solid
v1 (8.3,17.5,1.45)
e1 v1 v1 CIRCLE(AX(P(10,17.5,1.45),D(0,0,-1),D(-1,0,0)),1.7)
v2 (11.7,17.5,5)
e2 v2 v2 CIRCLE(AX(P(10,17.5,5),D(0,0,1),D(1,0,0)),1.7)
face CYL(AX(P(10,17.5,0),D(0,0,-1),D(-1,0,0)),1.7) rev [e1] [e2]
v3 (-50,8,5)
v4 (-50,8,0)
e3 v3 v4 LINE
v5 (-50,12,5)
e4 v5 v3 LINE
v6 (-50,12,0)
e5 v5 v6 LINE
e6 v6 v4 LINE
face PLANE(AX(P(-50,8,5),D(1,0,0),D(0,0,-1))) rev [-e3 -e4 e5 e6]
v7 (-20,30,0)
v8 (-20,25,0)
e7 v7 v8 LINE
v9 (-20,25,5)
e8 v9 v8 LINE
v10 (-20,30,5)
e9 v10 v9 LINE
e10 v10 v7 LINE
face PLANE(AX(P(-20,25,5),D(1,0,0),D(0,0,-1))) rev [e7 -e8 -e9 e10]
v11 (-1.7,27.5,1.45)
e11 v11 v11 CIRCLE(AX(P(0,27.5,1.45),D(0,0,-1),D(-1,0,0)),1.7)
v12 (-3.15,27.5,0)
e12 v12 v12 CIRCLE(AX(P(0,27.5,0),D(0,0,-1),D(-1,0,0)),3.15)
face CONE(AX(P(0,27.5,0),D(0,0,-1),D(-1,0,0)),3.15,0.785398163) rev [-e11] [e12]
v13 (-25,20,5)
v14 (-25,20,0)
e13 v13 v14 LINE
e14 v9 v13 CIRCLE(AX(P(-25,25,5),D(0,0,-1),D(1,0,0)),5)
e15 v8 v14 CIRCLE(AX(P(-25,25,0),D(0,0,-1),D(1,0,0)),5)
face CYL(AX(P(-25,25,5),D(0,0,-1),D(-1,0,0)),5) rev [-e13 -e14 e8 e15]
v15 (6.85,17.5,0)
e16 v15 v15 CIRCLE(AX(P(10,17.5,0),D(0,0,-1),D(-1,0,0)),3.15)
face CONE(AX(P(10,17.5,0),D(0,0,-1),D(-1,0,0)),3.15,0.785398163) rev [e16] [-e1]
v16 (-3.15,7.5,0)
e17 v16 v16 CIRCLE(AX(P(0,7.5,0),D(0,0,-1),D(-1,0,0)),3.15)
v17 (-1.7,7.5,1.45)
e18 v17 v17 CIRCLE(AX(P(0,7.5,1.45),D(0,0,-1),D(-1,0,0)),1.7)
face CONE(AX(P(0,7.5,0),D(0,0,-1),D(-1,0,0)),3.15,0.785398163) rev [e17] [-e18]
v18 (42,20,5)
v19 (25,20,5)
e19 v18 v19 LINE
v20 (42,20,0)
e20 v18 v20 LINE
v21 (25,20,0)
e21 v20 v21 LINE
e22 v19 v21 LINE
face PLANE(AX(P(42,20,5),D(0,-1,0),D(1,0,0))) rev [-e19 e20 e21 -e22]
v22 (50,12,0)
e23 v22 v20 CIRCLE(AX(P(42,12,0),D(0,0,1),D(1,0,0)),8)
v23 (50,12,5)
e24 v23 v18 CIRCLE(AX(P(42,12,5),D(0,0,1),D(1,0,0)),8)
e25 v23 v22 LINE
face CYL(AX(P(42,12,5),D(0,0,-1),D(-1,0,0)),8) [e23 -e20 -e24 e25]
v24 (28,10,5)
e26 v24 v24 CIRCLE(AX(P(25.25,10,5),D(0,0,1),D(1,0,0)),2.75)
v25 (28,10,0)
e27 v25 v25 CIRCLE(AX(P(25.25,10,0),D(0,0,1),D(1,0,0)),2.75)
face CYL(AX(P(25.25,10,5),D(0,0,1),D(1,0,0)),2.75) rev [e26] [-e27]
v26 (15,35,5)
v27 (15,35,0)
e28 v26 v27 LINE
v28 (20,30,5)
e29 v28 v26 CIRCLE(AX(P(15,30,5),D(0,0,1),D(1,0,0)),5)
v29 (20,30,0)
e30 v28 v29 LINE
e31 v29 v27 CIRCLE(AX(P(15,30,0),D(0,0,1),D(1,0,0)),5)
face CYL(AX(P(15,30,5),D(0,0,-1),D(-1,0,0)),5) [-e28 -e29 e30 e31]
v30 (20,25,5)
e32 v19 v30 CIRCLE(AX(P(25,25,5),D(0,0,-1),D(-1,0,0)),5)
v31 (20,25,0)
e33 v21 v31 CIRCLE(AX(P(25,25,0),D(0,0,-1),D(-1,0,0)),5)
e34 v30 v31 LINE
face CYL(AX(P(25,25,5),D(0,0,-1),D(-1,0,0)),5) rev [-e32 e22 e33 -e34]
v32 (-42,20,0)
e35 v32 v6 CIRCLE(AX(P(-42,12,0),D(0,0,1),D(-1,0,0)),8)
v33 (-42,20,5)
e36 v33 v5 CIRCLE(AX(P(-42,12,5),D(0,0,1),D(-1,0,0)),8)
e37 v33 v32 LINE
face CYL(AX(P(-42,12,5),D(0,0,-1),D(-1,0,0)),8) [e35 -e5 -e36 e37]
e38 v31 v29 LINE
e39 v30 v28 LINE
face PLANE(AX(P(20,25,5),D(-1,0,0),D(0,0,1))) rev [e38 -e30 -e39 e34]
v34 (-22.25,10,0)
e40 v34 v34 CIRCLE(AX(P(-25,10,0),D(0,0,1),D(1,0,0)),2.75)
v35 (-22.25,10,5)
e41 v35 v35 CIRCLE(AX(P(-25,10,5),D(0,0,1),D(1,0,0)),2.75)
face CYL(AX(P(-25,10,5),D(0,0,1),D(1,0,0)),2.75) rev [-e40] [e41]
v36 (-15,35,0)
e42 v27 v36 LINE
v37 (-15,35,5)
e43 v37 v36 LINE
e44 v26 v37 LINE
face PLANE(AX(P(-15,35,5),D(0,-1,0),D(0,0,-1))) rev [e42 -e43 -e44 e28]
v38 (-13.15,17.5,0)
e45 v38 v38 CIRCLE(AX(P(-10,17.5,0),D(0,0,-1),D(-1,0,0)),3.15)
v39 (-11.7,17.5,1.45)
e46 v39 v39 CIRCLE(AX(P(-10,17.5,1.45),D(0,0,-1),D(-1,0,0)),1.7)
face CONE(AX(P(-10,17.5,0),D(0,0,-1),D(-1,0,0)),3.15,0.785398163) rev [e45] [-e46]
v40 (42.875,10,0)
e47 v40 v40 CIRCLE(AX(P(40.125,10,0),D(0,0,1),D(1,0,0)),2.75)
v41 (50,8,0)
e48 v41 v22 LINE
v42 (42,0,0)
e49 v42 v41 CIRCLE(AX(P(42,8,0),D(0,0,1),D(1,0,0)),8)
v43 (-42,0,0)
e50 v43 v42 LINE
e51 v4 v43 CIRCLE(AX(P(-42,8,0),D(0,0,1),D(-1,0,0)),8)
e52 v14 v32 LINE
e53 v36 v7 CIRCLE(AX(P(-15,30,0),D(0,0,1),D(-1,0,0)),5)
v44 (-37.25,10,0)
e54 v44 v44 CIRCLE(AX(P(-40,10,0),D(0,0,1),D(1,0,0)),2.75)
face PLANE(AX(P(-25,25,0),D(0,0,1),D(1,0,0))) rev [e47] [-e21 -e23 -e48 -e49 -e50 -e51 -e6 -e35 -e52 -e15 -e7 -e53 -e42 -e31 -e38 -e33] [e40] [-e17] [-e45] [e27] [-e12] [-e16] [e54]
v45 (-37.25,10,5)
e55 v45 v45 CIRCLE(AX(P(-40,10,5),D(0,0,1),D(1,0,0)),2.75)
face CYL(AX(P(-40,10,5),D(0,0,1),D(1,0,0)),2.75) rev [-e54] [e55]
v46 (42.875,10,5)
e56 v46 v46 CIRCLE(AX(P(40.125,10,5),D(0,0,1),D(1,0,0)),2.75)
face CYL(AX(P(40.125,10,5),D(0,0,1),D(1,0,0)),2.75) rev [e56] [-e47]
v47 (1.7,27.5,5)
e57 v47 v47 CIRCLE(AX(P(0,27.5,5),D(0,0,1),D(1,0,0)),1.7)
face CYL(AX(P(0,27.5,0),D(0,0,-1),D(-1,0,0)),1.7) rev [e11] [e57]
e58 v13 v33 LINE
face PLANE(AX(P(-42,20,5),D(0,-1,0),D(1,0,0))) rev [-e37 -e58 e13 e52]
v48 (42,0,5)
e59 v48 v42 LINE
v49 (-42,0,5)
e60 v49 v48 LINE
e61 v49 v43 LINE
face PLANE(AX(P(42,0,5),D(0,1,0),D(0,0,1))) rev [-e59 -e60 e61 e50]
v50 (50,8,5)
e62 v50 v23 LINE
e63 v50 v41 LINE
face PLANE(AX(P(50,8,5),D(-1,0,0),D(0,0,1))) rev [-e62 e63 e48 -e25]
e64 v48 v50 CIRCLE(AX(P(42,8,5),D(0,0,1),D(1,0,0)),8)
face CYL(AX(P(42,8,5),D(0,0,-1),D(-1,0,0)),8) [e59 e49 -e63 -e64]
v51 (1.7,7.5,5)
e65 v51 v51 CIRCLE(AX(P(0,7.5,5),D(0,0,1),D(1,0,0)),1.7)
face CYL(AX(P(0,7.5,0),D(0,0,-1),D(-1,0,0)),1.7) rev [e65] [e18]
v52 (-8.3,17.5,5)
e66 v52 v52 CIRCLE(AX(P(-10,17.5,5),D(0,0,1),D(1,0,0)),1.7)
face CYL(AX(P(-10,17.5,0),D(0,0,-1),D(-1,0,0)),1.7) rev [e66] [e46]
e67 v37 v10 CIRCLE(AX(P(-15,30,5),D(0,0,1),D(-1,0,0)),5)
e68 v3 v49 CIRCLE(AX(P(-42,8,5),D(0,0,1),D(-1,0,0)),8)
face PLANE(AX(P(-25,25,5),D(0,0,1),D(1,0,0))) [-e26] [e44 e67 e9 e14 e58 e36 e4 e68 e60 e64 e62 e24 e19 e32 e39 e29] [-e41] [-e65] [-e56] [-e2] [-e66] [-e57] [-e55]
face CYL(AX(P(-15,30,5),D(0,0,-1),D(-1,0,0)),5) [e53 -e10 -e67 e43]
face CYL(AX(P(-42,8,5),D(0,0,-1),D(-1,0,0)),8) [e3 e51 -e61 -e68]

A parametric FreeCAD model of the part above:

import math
import FreeCAD as App
import Part
import Sketcher
Q = App.Units.Quantity

doc = App.newDocument("Part")
body = doc.addObject("PartDesign::Body", "Body")

# Sketch on XY plane
sketch1 = body.newObject("Sketcher::SketchObject", "Sketch")
sketch1.AttachmentSupport = (doc.getObject("XY_Plane"), [""])
sketch1.MapMode = "FlatFace"
sketch1.addGeometry(Part.LineSegment(App.Vector(-42, 0, 0), App.Vector(42, 0, 0)), False)
sketch1.addGeometry(Part.ArcOfCircle(Part.Circle(App.Vector(42, 8, 0), App.Vector(0, 0, 1), 8), math.radians(-90), math.radians(0)), False)
sketch1.addGeometry(Part.LineSegment(App.Vector(50, 8, 0), App.Vector(50, 12, 0)), False)
sketch1.addGeometry(Part.ArcOfCircle(Part.Circle(App.Vector(42, 12, 0), App.Vector(0, 0, 1), 8), math.radians(0), math.radians(90)), False)
sketch1.addGeometry(Part.LineSegment(App.Vector(42, 20, 0), App.Vector(25, 20, 0)), False)
sketch1.addGeometry(Part.ArcOfCircle(Part.Circle(App.Vector(25, 25, 0), App.Vector(0, 0, 1), 5), math.radians(180), math.radians(270)), False)
sketch1.addGeometry(Part.LineSegment(App.Vector(20, 25, 0), App.Vector(20, 30, 0)), False)
sketch1.addGeometry(Part.ArcOfCircle(Part.Circle(App.Vector(15, 30, 0), App.Vector(0, 0, 1), 5), math.radians(0), math.radians(90)), False)
sketch1.addGeometry(Part.LineSegment(App.Vector(15, 35, 0), App.Vector(-15, 35, 0)), False)
sketch1.addGeometry(Part.ArcOfCircle(Part.Circle(App.Vector(-15, 30, 0), App.Vector(0, 0, 1), 5), math.radians(90), math.radians(180)), False)
sketch1.addGeometry(Part.LineSegment(App.Vector(-20, 30, 0), App.Vector(-20, 25, 0)), False)
sketch1.addGeometry(Part.ArcOfCircle(Part.Circle(App.Vector(-25, 25, 0), App.Vector(0, 0, 1), 5), math.radians(-90), math.radians(0)), False)
sketch1.addGeometry(Part.LineSegment(App.Vector(-25, 20, 0), App.Vector(-42, 20, 0)), False)
sketch1.addGeometry(Part.ArcOfCircle(Part.Circle(App.Vector(-42, 12, 0), App.Vector(0, 0, 1), 8), math.radians(90), math.radians(180)), False)
sketch1.addGeometry(Part.LineSegment(App.Vector(-50, 12, 0), App.Vector(-50, 8, 0)), False)
sketch1.addGeometry(Part.ArcOfCircle(Part.Circle(App.Vector(-42, 8, 0), App.Vector(0, 0, 1), 8), math.radians(-180), math.radians(-90)), False)
sketch1.addConstraint(Sketcher.Constraint("Tangent", 0, 2, 1, 1))
sketch1.addConstraint(Sketcher.Constraint("Tangent", 1, 2, 2, 1))
sketch1.addConstraint(Sketcher.Constraint("Tangent", 2, 2, 3, 1))
sketch1.addConstraint(Sketcher.Constraint("Tangent", 3, 2, 4, 1))
sketch1.addConstraint(Sketcher.Constraint("Tangent", 4, 2, 5, 2))
sketch1.addConstraint(Sketcher.Constraint("Tangent", 5, 1, 6, 1))
sketch1.addConstraint(Sketcher.Constraint("Tangent", 6, 2, 7, 1))
sketch1.addConstraint(Sketcher.Constraint("Tangent", 7, 2, 8, 1))
sketch1.addConstraint(Sketcher.Constraint("Tangent", 8, 2, 9, 1))
sketch1.addConstraint(Sketcher.Constraint("Tangent", 9, 2, 10, 1))
sketch1.addConstraint(Sketcher.Constraint("Tangent", 10, 2, 11, 2))
sketch1.addConstraint(Sketcher.Constraint("Tangent", 11, 1, 12, 1))
sketch1.addConstraint(Sketcher.Constraint("Tangent", 12, 2, 13, 1))
sketch1.addConstraint(Sketcher.Constraint("Tangent", 13, 2, 14, 1))
sketch1.addConstraint(Sketcher.Constraint("Tangent", 14, 2, 15, 1))
sketch1.addConstraint(Sketcher.Constraint("Tangent", 15, 2, 0, 1))
sketch1.addConstraint(Sketcher.Constraint("Horizontal", 0))
sketch1.addConstraint(Sketcher.Constraint("Vertical", 2))
sketch1.addConstraint(Sketcher.Constraint("Horizontal", 4))
sketch1.addConstraint(Sketcher.Constraint("Vertical", 6))
sketch1.addConstraint(Sketcher.Constraint("Horizontal", 8))
sketch1.addConstraint(Sketcher.Constraint("Vertical", 10))
sketch1.addConstraint(Sketcher.Constraint("Horizontal", 12))
sketch1.addConstraint(Sketcher.Constraint("Vertical", 14))
sketch1.addConstraint(Sketcher.Constraint("Equal", 1, 3))
sketch1.addConstraint(Sketcher.Constraint("Equal", 5, 7))
sketch1.addConstraint(Sketcher.Constraint("Equal", 7, 9))
sketch1.addConstraint(Sketcher.Constraint("Equal", 9, 11))
sketch1.addConstraint(Sketcher.Constraint("Equal", 3, 13))
sketch1.addConstraint(Sketcher.Constraint("Equal", 13, 15))
sketch1.addConstraint(Sketcher.Constraint("Symmetric", 0, 2, 15, 2, -1, 1))
sketch1.addConstraint(Sketcher.Constraint("Symmetric", 5, 3, 11, 3, -2))
sketch1.addConstraint(Sketcher.Constraint("Radius", 1, Q("8 mm")))
sketch1.addConstraint(Sketcher.Constraint("Radius", 5, Q("5 mm")))
sketch1.addConstraint(Sketcher.Constraint("DistanceX", 0, 1, 0, 2, Q("84 mm")))
sketch1.addConstraint(Sketcher.Constraint("DistanceX", 4, 2, 4, 1, Q("17 mm")))
sketch1.addConstraint(Sketcher.Constraint("DistanceY", 2, 1, 2, 2, Q("4 mm")))
sketch1.addConstraint(Sketcher.Constraint("DistanceY", 6, 1, 6, 2, Q("5 mm")))
pad1 = body.newObject("PartDesign::Pad", "Pad")
pad1.Profile = sketch1
pad1.Length = 5

# Sketch on XY plane
sketch2 = body.newObject("Sketcher::SketchObject", "Sketch001")
sketch2.AttachmentSupport = (doc.getObject("XY_Plane"), [""])
sketch2.MapMode = "FlatFace"
sketch2.AttachmentOffset = App.Placement(App.Vector(0, 0, 5), App.Rotation())
sketch2.addGeometry(Part.Circle(App.Vector(-40, 10, 0), App.Vector(0, 0, 1), 2.75), False)
sketch2.addGeometry(Part.Circle(App.Vector(-25, 10, 0), App.Vector(0, 0, 1), 2.75), False)
sketch2.addGeometry(Part.Circle(App.Vector(25.25, 10, 0), App.Vector(0, 0, 1), 2.75), False)
sketch2.addGeometry(Part.Circle(App.Vector(40.125, 10, 0), App.Vector(0, 0, 1), 2.75), False)
sketch2.addConstraint(Sketcher.Constraint("Equal", 0, 1))
sketch2.addConstraint(Sketcher.Constraint("Equal", 1, 2))
sketch2.addConstraint(Sketcher.Constraint("Equal", 2, 3))
sketch2.addConstraint(Sketcher.Constraint("Horizontal", 0, 3, 1, 3))
sketch2.addConstraint(Sketcher.Constraint("Horizontal", 1, 3, 2, 3))
sketch2.addConstraint(Sketcher.Constraint("Horizontal", 2, 3, 3, 3))
sketch2.addConstraint(Sketcher.Constraint("Diameter", 0, Q("5.5 mm")))
sketch2.addConstraint(Sketcher.Constraint("DistanceX", 0, 3, -1, 1, Q("40 mm")))
sketch2.addConstraint(Sketcher.Constraint("DistanceY", -1, 1, 0, 3, Q("10 mm")))
sketch2.addConstraint(Sketcher.Constraint("DistanceX", 1, 3, -1, 1, Q("25 mm")))
sketch2.addConstraint(Sketcher.Constraint("DistanceX", -1, 1, 2, 3, Q("25.25 mm")))
sketch2.addConstraint(Sketcher.Constraint("DistanceX", -1, 1, 3, 3, Q("40.125 mm")))
doc.recompute()
hole = body.newObject("PartDesign::Hole", "Hole")
hole.Profile = sketch2
hole.ThreadType = "None"
hole.Diameter = 5.5
hole.DepthType = "Dimension"
hole.Depth = 5
hole.DrillPoint = "Flat"

# Sketch on XY plane
sketch3 = body.newObject("Sketcher::SketchObject", "Sketch002")
sketch3.AttachmentSupport = (doc.getObject("XY_Plane"), [""])
sketch3.MapMode = "FlatFace"
sketch3.addGeometry(Part.Circle(App.Vector(10, 17.5, 0), App.Vector(0, 0, 1), 1.7), False)
sketch3.addGeometry(Part.Circle(App.Vector(0, 7.5, 0), App.Vector(0, 0, 1), 1.7), False)
sketch3.addGeometry(Part.Circle(App.Vector(-10, 17.5, 0), App.Vector(0, 0, 1), 1.7), False)
sketch3.addGeometry(Part.Circle(App.Vector(0, 27.5, 0), App.Vector(0, 0, 1), 1.7), False)
sketch3.addConstraint(Sketcher.Constraint("Equal", 0, 1))
sketch3.addConstraint(Sketcher.Constraint("Equal", 1, 2))
sketch3.addConstraint(Sketcher.Constraint("Equal", 2, 3))
sketch3.addConstraint(Sketcher.Constraint("Symmetric", 0, 3, 2, 3, -2))
sketch3.addConstraint(Sketcher.Constraint("PointOnObject", 1, 3, -2))
sketch3.addConstraint(Sketcher.Constraint("PointOnObject", 3, 3, -2))
sketch3.addConstraint(Sketcher.Constraint("Diameter", 0, Q("3.4 mm")))
sketch3.addConstraint(Sketcher.Constraint("DistanceX", -1, 1, 0, 3, Q("10 mm")))
sketch3.addConstraint(Sketcher.Constraint("DistanceY", 1, 3, 0, 3, Q("10 mm")))
sketch3.addConstraint(Sketcher.Constraint("DistanceY", 0, 3, 3, 3, Q("10 mm")))
sketch3.addConstraint(Sketcher.Constraint("DistanceY", -1, 1, 0, 3, Q("17.5 mm")))
doc.recompute()
hole2 = body.newObject("PartDesign::Hole", "Hole001")
hole2.Profile = sketch3
hole2.ThreadType = "None"
hole2.Diameter = 3.4
hole2.DepthType = "Dimension"
hole2.Depth = 5
hole2.DrillPoint = "Flat"
hole2.HoleCutType = "Countersink"
hole2.HoleCutDiameter = 6.3
hole2.HoleCutCountersinkAngle = 90
hole2.Reversed = True

doc.recompute()
